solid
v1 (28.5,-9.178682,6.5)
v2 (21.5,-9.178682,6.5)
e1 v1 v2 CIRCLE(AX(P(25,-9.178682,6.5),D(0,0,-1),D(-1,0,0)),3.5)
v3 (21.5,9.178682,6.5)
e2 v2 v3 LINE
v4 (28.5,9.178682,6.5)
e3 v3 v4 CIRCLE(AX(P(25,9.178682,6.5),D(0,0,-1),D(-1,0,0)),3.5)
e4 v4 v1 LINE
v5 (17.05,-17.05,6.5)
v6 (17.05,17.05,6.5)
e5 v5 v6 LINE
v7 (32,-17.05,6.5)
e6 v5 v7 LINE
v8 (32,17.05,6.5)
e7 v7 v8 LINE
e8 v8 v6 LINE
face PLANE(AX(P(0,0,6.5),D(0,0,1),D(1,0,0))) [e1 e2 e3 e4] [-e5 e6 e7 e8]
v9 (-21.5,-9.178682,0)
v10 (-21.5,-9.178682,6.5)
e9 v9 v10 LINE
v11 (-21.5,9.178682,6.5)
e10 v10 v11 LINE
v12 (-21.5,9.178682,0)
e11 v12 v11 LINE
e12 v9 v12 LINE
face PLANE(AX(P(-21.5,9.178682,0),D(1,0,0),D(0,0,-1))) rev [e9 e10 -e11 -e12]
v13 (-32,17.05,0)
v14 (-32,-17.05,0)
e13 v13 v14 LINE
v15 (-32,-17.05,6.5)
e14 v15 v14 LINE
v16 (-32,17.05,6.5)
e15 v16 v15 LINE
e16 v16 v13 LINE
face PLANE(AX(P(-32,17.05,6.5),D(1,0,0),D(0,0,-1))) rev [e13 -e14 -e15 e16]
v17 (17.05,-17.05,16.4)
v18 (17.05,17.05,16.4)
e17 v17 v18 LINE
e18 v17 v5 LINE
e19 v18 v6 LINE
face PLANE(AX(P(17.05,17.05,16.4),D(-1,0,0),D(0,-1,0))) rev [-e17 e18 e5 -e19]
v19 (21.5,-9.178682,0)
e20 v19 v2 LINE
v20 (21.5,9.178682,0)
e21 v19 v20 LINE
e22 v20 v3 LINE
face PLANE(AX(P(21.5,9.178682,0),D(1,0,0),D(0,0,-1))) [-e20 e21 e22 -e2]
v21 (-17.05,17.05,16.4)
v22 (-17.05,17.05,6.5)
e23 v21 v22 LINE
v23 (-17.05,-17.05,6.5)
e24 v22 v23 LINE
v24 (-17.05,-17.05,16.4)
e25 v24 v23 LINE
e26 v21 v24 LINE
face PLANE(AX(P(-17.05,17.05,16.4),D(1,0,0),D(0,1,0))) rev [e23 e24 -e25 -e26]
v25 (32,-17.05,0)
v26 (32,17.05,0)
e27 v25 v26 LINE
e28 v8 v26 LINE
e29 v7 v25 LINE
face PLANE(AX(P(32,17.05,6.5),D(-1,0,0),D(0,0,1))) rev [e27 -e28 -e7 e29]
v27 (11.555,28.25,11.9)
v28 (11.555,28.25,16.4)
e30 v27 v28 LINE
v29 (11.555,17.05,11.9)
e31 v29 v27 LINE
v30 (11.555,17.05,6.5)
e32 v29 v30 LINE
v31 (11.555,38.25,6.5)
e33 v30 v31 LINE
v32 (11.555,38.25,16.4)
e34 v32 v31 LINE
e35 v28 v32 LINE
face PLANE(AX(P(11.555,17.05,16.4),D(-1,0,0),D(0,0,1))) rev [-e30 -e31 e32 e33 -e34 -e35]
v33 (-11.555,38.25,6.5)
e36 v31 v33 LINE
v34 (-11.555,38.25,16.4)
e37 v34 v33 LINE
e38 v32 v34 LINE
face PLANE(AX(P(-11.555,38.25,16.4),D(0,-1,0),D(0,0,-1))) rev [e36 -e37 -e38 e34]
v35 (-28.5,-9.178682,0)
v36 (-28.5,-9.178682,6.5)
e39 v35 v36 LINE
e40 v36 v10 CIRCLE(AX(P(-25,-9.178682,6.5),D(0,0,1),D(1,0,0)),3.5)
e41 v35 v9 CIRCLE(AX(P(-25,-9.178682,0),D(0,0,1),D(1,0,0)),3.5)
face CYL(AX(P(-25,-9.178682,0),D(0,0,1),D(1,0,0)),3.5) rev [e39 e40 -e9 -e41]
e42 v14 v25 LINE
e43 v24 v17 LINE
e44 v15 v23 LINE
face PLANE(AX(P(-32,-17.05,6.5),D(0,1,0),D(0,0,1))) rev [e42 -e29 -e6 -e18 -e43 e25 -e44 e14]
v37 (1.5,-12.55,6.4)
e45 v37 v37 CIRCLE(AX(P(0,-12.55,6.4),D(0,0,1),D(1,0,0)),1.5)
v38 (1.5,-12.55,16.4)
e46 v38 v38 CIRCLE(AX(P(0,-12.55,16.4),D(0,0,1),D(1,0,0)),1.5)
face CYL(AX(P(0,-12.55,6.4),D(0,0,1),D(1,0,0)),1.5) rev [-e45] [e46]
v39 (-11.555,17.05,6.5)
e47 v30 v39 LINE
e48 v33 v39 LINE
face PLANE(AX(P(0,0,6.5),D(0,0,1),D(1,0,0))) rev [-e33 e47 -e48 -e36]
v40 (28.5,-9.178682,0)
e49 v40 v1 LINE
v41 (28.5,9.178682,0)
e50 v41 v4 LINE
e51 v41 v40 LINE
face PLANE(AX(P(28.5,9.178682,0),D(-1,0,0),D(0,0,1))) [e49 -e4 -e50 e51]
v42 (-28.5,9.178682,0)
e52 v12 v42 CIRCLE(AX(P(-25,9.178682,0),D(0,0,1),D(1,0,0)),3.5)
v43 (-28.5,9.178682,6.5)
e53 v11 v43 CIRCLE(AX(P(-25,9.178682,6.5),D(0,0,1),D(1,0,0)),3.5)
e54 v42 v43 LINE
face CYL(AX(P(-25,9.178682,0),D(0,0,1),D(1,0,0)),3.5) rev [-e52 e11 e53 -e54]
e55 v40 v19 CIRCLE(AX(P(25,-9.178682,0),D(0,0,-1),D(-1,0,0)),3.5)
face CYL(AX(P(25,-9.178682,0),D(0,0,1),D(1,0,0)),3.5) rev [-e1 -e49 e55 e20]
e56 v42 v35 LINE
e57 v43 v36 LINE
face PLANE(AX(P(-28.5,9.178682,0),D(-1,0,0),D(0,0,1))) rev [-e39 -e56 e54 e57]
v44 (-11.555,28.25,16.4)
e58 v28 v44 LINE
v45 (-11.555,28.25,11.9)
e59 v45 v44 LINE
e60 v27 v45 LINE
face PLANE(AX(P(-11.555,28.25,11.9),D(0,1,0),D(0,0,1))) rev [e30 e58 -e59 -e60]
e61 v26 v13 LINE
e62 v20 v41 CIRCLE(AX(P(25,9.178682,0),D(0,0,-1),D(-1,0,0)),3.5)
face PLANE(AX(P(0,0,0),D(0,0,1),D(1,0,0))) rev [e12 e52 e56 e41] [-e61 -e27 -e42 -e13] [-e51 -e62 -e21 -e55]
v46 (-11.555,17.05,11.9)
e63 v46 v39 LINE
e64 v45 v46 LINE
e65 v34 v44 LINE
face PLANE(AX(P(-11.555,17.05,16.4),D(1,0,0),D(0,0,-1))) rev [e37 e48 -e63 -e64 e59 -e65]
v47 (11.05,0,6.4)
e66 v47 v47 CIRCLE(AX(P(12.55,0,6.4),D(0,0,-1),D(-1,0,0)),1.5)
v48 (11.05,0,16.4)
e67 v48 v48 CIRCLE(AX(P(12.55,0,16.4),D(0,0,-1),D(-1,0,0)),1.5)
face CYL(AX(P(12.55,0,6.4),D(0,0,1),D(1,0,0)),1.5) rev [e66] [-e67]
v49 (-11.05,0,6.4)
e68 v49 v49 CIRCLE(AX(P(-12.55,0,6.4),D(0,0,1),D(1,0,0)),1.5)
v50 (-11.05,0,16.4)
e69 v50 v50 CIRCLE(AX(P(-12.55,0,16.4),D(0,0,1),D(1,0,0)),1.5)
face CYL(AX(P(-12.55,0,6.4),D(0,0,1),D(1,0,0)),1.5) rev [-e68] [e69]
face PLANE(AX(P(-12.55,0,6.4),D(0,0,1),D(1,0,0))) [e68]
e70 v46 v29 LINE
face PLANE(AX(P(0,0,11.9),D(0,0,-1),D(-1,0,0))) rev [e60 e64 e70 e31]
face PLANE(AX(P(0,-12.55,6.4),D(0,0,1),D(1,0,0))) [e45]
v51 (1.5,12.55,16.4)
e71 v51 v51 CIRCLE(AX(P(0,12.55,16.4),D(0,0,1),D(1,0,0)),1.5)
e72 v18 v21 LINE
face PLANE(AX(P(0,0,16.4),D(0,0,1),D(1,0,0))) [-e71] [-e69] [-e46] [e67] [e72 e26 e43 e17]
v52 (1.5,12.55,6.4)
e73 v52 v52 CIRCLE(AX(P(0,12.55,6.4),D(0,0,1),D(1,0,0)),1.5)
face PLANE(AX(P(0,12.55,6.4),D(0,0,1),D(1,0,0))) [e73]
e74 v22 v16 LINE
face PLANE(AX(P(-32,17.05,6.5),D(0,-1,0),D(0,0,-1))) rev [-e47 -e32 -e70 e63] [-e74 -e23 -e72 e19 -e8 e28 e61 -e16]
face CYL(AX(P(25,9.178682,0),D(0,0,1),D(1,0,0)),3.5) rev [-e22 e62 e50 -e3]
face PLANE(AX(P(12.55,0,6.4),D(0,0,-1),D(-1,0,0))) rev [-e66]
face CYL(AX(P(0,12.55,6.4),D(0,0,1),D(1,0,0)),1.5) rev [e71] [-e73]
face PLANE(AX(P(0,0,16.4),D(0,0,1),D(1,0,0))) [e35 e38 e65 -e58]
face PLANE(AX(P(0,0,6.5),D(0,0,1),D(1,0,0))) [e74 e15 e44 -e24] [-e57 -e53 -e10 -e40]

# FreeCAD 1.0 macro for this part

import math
import FreeCAD as App
import Part
import Sketcher
from FreeCAD import Vector

doc = App.newDocument("Part")
params = doc.addObject("Spreadsheet::Sheet", "Params")
for row, (alias, value) in enumerate([
    ("sketch1_width", "64 mm"),
    ("sketch1_height", "34.1 mm"),
    ("pad1_length", "6.5 mm"),
    ("sketch2_width", "34.1 mm"),
    ("sketch2_height", "21.2 mm"),
    ("sketch2_width2", "23.11 mm"),
    ("pad2_length", "9.9 mm"),
    ("sketch3_height", "11.2 mm"),
    ("sketch3_width", "23.11 mm"),
    ("pocket1_length", "4.5 mm"),
    ("sketch4_radius", "3.5 mm"),
    ("sketch5_diameter", "3 mm"),
    ("pocket3_length", "10 mm"),
], start=1):
    params.set(f"A{row}", alias)
    params.set(f"B{row}", "=" + value)
    params.setAlias(f"B{row}", alias)

body = doc.addObject("PartDesign::Body", "Body")

# Sketch on XY plane
sketch1 = body.newObject("Sketcher::SketchObject", "Sketch")
sketch1.AttachmentSupport = (doc.getObject("XY_Plane"), [""])
sketch1.MapMode = "FlatFace"
sketch1.addGeometry([
    Part.LineSegment(Vector(-32, 17, 0), Vector(-32, -17, 0)),
    Part.LineSegment(Vector(-32, -17, 0), Vector(32, -17, 0)),
    Part.LineSegment(Vector(32, -17, 0), Vector(32, 17, 0)),
    Part.LineSegment(Vector(32, 17, 0), Vector(-32, 17, 0)),
], False)
sketch1.addConstraint([
    Sketcher.Constraint("Coincident", 0, 2, 1, 1),
    Sketcher.Constraint("Coincident", 1, 2, 2, 1),
    Sketcher.Constraint("Coincident", 2, 2, 3, 1),
    Sketcher.Constraint("Coincident", 3, 2, 0, 1),
    Sketcher.Constraint("Vertical", 0),
    Sketcher.Constraint("Horizontal", 1),
    Sketcher.Constraint("Vertical", 2),
    Sketcher.Constraint("Horizontal", 3),
    Sketcher.Constraint("Symmetric", 0, 2, 2, 2, -1, 1),
    Sketcher.Constraint("DistanceX", 1, 1, 1, 2, 64.0),
    Sketcher.Constraint("DistanceY", 0, 2, 0, 1, 34.1),
])
sketch1.setExpression("Constraints[9]", "Params.sketch1_width")
sketch1.setExpression("Constraints[10]", "Params.sketch1_height")
pad1 = body.newObject("PartDesign::Pad", "Pad")
pad1.Profile = sketch1
pad1.setExpression("Length", "Params.pad1_length")

# Sketch on XY plane
sketch2 = body.newObject("Sketcher::SketchObject", "Sketch001")
sketch2.AttachmentSupport = (doc.getObject("XY_Plane"), [""])
sketch2.MapMode = "FlatFace"
sketch2.AttachmentOffset = App.Placement(Vector(0, 0, 6.5), App.Rotation())
sketch2.addGeometry([
    Part.LineSegment(Vector(-12, 17, 0), Vector(-17, 17, 0)),  # 0
    Part.LineSegment(Vector(-17, 17, 0), Vector(-17, -17, 0)),  # 1
    Part.LineSegment(Vector(-17, -17, 0), Vector(17, -17, 0)),  # 2
    Part.LineSegment(Vector(17, -17, 0), Vector(17, 17, 0)),  # 3
    Part.LineSegment(Vector(17, 17, 0), Vector(12, 17, 0)),  # 4
    Part.LineSegment(Vector(12, 17, 0), Vector(12, 38, 0)),  # 5
    Part.LineSegment(Vector(12, 38, 0), Vector(-12, 38, 0)),  # 6
    Part.LineSegment(Vector(-12, 38, 0), Vector(-12, 17, 0)),  # 7
], False)
sketch2.addConstraint([
    Sketcher.Constraint("Coincident", 0, 2, 1, 1),
    Sketcher.Constraint("Coincident", 1, 2, 2, 1),
    Sketcher.Constraint("Coincident", 2, 2, 3, 1),
    Sketcher.Constraint("Coincident", 3, 2, 4, 1),
    Sketcher.Constraint("Coincident", 4, 2, 5, 1),
    Sketcher.Constraint("Coincident", 5, 2, 6, 1),
    Sketcher.Constraint("Coincident", 6, 2, 7, 1),
    Sketcher.Constraint("Coincident", 7, 2, 0, 1),
    Sketcher.Constraint("Horizontal", 0),
    Sketcher.Constraint("Vertical", 1),
    Sketcher.Constraint("Horizontal", 2),
    Sketcher.Constraint("Vertical", 3),
    Sketcher.Constraint("Horizontal", 4),
    Sketcher.Constraint("Vertical", 5),
    Sketcher.Constraint("Horizontal", 6),
    Sketcher.Constraint("Vertical", 7),
    Sketcher.Constraint("Symmetric", 0, 2, 2, 2, -1, 1),
    Sketcher.Constraint("Symmetric", 4, 2, 7, 2, -2),
    Sketcher.Constraint("Equal", 2, 1),
    Sketcher.Constraint("DistanceX", 2, 1, 2, 2, 34.1),
    Sketcher.Constraint("DistanceY", 5, 1, 5, 2, 21.2),
    Sketcher.Constraint("DistanceX", 6, 2, 6, 1, 23.11),
])
sketch2.setExpression("Constraints[19]", "Params.sketch2_width")
sketch2.setExpression("Constraints[20]", "Params.sketch2_height")
sketch2.setExpression("Constraints[21]", "Params.sketch2_width2")
pad2 = body.newObject("PartDesign::Pad", "Pad001")
pad2.Profile = sketch2
pad2.setExpression("Length", "Params.pad2_length")

# Sketch on XY plane
sketch3 = body.newObject("Sketcher::SketchObject", "Sketch002")
sketch3.AttachmentSupport = (doc.getObject("XY_Plane"), [""])
sketch3.MapMode = "FlatFace"
sketch3.AttachmentOffset = App.Placement(Vector(0, 0, 16.4), App.Rotation())
sketch3.addGeometry([
    Part.LineSegment(Vector(-12, 28, 0), Vector(-12, 17, 0)),
    Part.LineSegment(Vector(-12, 17, 0), Vector(12, 17, 0)),
    Part.LineSegment(Vector(12, 17, 0), Vector(12, 28, 0)),
    Part.LineSegment(Vector(12, 28, 0), Vector(-12, 28, 0)),
], False)
sketch3.addConstraint([
    Sketcher.Constraint("Coincident", 0, 2, 1, 1),
    Sketcher.Constraint("Coincident", 1, 2, 2, 1),
    Sketcher.Constraint("Coincident", 2, 2, 3, 1),
    Sketcher.Constraint("Coincident", 3, 2, 0, 1),
    Sketcher.Constraint("Vertical", 0),
    Sketcher.Constraint("Horizontal", 1),
    Sketcher.Constraint("Vertical", 2),
    Sketcher.Constraint("Horizontal", 3),
    Sketcher.Constraint("DistanceY", 0, 2, 0, 1, 11.2),
    Sketcher.Constraint("DistanceX", 1, 1, 1, 2, 23.11),
    Sketcher.Constraint("DistanceY", -1, 1, 0, 2, 17.05),
    Sketcher.Constraint("DistanceX", 0, 2, -1, 1, 11.555),
])
sketch3.setExpression("Constraints[8]", "Params.sketch3_height")
sketch3.setExpression("Constraints[9]", "Params.sketch3_width")
pocket1 = body.newObject("PartDesign::Pocket", "Pocket")
pocket1.Profile = sketch3
pocket1.setExpression("Length", "Params.pocket1_length")

# Sketch on XY plane
sketch4 = body.newObject("Sketcher::SketchObject", "Sketch003")
sketch4.AttachmentSupport = (doc.getObject("XY_Plane"), [""])
sketch4.MapMode = "FlatFace"
sketch4.AttachmentOffset = App.Placement(Vector(0, 0, 6.5), App.Rotation())
sketch4.addGeometry([
    Part.LineSegment(Vector(-21.5, -9.2, 0), Vector(-21.5, 9.2, 0)),
    Part.ArcOfCircle(Part.Circle(Vector(-25, 9.2, 0), Vector(0, 0, 1), 3.5), math.radians(0), math.radians(180)),
    Part.LineSegment(Vector(-28.5, 9.2, 0), Vector(-28.5, -9.2, 0)),
    Part.ArcOfCircle(Part.Circle(Vector(-25, -9.2, 0), Vector(0, 0, 1), 3.5), math.radians(180), math.radians(360)),
], False)
sketch4.addConstraint([
    Sketcher.Constraint("Tangent", 0, 2, 1, 1),
    Sketcher.Constraint("Tangent", 1, 2, 2, 1),
    Sketcher.Constraint("Tangent", 2, 2, 3, 1),
    Sketcher.Constraint("Tangent", 3, 2, 0, 1),
    Sketcher.Constraint("Vertical", 0),
    Sketcher.Constraint("Vertical", 2),
    Sketcher.Constraint("Radius", 1, 3.5),
    Sketcher.Constraint("DistanceX", 1, 3, -1, 1, 25.0),
    Sketcher.Constraint("DistanceY", 0, 1, 0, 2, 18.357363),
    Sketcher.Constraint("DistanceY", -1, 1, 1, 3, 9.178682),
])
sketch4.setExpression("Constraints[6]", "Params.sketch4_radius")
pocket2 = body.newObject("PartDesign::Pocket", "Pocket001")
pocket2.Profile = sketch4
pocket2.Type = "ThroughAll"
doc.recompute()

mirrored = body.newObject("PartDesign::Mirrored", "Mirrored")
mirrored.Originals = [pocket2]
mirrored.MirrorPlane = (doc.getObject("YZ_Plane"), [""])
body.Tip = mirrored

# Sketch on XY plane
sketch5 = body.newObject("Sketcher::SketchObject", "Sketch004")
sketch5.AttachmentSupport = (doc.getObject("XY_Plane"), [""])
sketch5.MapMode = "FlatFace"
sketch5.AttachmentOffset = App.Placement(Vector(0, 0, 16.4), App.Rotation())
sketch5.addGeometry([
    Part.Circle(Vector(-12.6, 0, 0), Vector(0, 0, 1), 1.5),
    Part.Circle(Vector(12.6, 0, 0), Vector(0, 0, 1), 1.5),
    Part.Circle(Vector(0, 12.6, 0), Vector(0, 0, 1), 1.5),
    Part.Circle(Vector(0, -12.6, 0), Vector(0, 0, 1), 1.5),
], False)
sketch5.addConstraint([
    Sketcher.Constraint("Equal", 0, 1),
    Sketcher.Constraint("Equal", 1, 2),
    Sketcher.Constraint("Equal", 2, 3),
    Sketcher.Constraint("Symmetric", 0, 3, 1, 3, -1, 1),
    Sketcher.Constraint("Symmetric", 2, 3, 3, 3, -1, 1),
    Sketcher.Constraint("PointOnObject", 0, 3, -1),
    Sketcher.Constraint("PointOnObject", 2, 3, -2),
    Sketcher.Constraint("Diameter", 0, 3.0),
    Sketcher.Constraint("DistanceX", 0, 3, 1, 3, 25.1),
    Sketcher.Constraint("DistanceY", 3, 3, 2, 3, 25.1),
])
sketch5.setExpression("Constraints[7]", "Params.sketch5_diameter")
pocket3 = body.newObject("PartDesign::Pocket", "Pocket002")
pocket3.Profile = sketch5
pocket3.setExpression("Length", "Params.pocket3_length")

doc.recompute()
